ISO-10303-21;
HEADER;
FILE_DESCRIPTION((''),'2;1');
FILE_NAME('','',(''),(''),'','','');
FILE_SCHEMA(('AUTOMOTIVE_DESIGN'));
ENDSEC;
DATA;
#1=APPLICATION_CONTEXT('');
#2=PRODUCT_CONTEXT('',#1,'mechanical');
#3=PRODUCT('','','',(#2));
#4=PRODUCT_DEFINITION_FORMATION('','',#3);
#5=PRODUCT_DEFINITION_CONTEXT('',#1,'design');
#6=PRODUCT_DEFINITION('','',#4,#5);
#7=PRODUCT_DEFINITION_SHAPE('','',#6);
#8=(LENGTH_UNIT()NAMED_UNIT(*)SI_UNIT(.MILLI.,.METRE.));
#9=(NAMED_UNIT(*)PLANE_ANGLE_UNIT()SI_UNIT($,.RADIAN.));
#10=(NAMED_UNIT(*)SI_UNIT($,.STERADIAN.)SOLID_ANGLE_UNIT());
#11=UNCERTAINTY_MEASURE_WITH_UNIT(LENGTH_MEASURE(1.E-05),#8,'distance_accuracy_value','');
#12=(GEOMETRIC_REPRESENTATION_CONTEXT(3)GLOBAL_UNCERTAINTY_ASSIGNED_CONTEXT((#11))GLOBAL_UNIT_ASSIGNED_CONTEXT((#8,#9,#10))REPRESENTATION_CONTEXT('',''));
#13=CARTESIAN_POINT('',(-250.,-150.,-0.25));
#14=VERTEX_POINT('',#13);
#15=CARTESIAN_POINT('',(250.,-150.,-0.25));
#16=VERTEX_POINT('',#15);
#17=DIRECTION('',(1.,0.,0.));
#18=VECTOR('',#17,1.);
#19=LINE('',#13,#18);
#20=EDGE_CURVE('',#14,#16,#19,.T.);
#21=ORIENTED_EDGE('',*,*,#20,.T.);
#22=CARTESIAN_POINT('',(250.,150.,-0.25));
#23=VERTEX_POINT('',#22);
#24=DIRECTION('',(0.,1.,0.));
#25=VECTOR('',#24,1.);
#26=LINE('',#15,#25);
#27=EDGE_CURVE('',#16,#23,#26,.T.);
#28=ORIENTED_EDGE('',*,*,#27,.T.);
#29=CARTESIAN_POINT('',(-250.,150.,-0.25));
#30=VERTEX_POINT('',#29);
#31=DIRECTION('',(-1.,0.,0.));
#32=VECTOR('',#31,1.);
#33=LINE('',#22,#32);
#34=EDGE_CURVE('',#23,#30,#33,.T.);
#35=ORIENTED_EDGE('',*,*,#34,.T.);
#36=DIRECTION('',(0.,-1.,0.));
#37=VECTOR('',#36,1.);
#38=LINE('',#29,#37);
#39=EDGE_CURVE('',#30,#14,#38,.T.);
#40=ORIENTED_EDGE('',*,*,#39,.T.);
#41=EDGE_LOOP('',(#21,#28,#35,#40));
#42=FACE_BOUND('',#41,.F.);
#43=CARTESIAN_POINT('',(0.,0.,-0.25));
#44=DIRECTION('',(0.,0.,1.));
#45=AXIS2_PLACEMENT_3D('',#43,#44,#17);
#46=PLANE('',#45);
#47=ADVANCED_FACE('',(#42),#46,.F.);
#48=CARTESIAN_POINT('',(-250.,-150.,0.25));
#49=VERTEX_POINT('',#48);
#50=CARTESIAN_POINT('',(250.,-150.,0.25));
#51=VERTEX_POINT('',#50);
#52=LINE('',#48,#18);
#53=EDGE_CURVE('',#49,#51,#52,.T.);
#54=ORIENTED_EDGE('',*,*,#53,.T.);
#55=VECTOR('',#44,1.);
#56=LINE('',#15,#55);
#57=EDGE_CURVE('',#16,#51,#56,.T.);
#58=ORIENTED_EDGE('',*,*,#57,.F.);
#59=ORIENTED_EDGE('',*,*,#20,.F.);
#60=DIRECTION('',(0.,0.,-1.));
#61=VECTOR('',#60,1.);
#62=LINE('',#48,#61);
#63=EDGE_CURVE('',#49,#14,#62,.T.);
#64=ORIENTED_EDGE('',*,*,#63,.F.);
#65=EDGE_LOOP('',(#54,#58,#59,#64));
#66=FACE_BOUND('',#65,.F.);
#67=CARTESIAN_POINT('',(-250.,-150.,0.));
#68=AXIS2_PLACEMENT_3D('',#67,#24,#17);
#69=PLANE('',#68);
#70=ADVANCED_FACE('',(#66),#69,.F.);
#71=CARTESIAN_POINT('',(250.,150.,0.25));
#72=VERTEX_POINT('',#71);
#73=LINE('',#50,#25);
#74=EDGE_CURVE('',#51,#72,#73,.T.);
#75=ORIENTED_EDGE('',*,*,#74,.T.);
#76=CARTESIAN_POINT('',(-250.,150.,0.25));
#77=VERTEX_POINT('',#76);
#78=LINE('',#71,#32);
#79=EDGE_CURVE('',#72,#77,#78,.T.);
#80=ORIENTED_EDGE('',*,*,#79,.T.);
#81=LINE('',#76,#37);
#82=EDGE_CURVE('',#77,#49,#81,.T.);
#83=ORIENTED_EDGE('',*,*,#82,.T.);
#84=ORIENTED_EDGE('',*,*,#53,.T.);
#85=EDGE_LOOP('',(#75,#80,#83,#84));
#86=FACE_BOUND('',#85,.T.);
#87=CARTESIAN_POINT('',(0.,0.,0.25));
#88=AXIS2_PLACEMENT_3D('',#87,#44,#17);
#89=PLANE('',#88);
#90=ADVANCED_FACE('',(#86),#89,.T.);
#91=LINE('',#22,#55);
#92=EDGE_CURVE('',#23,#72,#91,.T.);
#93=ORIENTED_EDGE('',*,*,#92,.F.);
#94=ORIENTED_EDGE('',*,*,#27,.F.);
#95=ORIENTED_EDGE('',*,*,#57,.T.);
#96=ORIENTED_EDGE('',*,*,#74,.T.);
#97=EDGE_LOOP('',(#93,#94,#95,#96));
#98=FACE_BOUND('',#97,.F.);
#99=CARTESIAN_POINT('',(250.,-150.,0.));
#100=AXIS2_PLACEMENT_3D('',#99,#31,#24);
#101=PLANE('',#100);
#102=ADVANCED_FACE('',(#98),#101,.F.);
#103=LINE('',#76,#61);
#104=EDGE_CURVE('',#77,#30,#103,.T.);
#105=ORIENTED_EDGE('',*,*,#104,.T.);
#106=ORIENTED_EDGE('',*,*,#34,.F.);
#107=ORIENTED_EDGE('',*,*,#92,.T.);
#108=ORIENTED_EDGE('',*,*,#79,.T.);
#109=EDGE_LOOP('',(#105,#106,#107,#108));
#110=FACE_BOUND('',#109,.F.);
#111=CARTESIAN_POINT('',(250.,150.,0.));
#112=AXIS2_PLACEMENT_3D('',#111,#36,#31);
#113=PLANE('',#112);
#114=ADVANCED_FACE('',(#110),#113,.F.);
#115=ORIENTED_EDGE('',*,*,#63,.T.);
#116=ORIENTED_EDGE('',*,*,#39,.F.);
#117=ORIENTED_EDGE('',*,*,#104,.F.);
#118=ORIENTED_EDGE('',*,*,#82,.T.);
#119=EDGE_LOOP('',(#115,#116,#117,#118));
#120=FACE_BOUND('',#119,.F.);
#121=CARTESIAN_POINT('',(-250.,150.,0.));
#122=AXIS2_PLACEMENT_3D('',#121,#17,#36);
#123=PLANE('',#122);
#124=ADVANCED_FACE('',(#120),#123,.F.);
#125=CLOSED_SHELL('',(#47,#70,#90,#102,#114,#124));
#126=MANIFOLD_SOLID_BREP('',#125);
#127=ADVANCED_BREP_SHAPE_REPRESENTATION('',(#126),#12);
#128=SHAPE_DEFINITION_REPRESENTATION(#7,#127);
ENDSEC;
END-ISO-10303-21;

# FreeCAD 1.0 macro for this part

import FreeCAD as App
import Part
import Sketcher
from FreeCAD import Vector


def add_polygon(sketch, points):
    """Adds a closed chain of lines whose ends are joined by coincident constraints."""
    first, n = sketch.GeometryCount, len(points)
    for a, b in zip(points, points[1:] + points[:1]):
        sketch.addGeometry(Part.LineSegment(App.Vector(*a, 0), App.Vector(*b, 0)), False)
    for i in range(n):
        sketch.addConstraint(Sketcher.Constraint("Coincident", first + i, 2, first + (i + 1) % n, 1))

doc = App.newDocument("Part")
body = doc.addObject("PartDesign::Body", "Body")

sketch1 = doc.addObject("Sketcher::SketchObject", "Sketch")
body.addObject(sketch1)
sketch1.AttachmentSupport = (doc.XY_Plane, [""])
sketch1.MapMode = "FlatFace"
add_polygon(sketch1, [(-250, 150), (-250, -150), (250, -150), (250, 150)])
sketch1.addConstraint(Sketcher.Constraint("Vertical", 0))
sketch1.addConstraint(Sketcher.Constraint("Horizontal", 1))
sketch1.addConstraint(Sketcher.Constraint("Vertical", 2))
sketch1.addConstraint(Sketcher.Constraint("Horizontal", 3))
sketch1.addConstraint(Sketcher.Constraint("Symmetric", 0, 2, 2, 2, -1, 1))
sketch1.addConstraint(Sketcher.Constraint("DistanceX", 1, 1, 1, 2, 500.0))
sketch1.addConstraint(Sketcher.Constraint("DistanceY", 0, 2, 0, 1, 300.0))
pad1 = doc.addObject("PartDesign::Pad", "Pad")
body.addObject(pad1)
pad1.Profile = sketch1
pad1.Length = 0.5
pad1.Midplane = True

doc.recompute()
